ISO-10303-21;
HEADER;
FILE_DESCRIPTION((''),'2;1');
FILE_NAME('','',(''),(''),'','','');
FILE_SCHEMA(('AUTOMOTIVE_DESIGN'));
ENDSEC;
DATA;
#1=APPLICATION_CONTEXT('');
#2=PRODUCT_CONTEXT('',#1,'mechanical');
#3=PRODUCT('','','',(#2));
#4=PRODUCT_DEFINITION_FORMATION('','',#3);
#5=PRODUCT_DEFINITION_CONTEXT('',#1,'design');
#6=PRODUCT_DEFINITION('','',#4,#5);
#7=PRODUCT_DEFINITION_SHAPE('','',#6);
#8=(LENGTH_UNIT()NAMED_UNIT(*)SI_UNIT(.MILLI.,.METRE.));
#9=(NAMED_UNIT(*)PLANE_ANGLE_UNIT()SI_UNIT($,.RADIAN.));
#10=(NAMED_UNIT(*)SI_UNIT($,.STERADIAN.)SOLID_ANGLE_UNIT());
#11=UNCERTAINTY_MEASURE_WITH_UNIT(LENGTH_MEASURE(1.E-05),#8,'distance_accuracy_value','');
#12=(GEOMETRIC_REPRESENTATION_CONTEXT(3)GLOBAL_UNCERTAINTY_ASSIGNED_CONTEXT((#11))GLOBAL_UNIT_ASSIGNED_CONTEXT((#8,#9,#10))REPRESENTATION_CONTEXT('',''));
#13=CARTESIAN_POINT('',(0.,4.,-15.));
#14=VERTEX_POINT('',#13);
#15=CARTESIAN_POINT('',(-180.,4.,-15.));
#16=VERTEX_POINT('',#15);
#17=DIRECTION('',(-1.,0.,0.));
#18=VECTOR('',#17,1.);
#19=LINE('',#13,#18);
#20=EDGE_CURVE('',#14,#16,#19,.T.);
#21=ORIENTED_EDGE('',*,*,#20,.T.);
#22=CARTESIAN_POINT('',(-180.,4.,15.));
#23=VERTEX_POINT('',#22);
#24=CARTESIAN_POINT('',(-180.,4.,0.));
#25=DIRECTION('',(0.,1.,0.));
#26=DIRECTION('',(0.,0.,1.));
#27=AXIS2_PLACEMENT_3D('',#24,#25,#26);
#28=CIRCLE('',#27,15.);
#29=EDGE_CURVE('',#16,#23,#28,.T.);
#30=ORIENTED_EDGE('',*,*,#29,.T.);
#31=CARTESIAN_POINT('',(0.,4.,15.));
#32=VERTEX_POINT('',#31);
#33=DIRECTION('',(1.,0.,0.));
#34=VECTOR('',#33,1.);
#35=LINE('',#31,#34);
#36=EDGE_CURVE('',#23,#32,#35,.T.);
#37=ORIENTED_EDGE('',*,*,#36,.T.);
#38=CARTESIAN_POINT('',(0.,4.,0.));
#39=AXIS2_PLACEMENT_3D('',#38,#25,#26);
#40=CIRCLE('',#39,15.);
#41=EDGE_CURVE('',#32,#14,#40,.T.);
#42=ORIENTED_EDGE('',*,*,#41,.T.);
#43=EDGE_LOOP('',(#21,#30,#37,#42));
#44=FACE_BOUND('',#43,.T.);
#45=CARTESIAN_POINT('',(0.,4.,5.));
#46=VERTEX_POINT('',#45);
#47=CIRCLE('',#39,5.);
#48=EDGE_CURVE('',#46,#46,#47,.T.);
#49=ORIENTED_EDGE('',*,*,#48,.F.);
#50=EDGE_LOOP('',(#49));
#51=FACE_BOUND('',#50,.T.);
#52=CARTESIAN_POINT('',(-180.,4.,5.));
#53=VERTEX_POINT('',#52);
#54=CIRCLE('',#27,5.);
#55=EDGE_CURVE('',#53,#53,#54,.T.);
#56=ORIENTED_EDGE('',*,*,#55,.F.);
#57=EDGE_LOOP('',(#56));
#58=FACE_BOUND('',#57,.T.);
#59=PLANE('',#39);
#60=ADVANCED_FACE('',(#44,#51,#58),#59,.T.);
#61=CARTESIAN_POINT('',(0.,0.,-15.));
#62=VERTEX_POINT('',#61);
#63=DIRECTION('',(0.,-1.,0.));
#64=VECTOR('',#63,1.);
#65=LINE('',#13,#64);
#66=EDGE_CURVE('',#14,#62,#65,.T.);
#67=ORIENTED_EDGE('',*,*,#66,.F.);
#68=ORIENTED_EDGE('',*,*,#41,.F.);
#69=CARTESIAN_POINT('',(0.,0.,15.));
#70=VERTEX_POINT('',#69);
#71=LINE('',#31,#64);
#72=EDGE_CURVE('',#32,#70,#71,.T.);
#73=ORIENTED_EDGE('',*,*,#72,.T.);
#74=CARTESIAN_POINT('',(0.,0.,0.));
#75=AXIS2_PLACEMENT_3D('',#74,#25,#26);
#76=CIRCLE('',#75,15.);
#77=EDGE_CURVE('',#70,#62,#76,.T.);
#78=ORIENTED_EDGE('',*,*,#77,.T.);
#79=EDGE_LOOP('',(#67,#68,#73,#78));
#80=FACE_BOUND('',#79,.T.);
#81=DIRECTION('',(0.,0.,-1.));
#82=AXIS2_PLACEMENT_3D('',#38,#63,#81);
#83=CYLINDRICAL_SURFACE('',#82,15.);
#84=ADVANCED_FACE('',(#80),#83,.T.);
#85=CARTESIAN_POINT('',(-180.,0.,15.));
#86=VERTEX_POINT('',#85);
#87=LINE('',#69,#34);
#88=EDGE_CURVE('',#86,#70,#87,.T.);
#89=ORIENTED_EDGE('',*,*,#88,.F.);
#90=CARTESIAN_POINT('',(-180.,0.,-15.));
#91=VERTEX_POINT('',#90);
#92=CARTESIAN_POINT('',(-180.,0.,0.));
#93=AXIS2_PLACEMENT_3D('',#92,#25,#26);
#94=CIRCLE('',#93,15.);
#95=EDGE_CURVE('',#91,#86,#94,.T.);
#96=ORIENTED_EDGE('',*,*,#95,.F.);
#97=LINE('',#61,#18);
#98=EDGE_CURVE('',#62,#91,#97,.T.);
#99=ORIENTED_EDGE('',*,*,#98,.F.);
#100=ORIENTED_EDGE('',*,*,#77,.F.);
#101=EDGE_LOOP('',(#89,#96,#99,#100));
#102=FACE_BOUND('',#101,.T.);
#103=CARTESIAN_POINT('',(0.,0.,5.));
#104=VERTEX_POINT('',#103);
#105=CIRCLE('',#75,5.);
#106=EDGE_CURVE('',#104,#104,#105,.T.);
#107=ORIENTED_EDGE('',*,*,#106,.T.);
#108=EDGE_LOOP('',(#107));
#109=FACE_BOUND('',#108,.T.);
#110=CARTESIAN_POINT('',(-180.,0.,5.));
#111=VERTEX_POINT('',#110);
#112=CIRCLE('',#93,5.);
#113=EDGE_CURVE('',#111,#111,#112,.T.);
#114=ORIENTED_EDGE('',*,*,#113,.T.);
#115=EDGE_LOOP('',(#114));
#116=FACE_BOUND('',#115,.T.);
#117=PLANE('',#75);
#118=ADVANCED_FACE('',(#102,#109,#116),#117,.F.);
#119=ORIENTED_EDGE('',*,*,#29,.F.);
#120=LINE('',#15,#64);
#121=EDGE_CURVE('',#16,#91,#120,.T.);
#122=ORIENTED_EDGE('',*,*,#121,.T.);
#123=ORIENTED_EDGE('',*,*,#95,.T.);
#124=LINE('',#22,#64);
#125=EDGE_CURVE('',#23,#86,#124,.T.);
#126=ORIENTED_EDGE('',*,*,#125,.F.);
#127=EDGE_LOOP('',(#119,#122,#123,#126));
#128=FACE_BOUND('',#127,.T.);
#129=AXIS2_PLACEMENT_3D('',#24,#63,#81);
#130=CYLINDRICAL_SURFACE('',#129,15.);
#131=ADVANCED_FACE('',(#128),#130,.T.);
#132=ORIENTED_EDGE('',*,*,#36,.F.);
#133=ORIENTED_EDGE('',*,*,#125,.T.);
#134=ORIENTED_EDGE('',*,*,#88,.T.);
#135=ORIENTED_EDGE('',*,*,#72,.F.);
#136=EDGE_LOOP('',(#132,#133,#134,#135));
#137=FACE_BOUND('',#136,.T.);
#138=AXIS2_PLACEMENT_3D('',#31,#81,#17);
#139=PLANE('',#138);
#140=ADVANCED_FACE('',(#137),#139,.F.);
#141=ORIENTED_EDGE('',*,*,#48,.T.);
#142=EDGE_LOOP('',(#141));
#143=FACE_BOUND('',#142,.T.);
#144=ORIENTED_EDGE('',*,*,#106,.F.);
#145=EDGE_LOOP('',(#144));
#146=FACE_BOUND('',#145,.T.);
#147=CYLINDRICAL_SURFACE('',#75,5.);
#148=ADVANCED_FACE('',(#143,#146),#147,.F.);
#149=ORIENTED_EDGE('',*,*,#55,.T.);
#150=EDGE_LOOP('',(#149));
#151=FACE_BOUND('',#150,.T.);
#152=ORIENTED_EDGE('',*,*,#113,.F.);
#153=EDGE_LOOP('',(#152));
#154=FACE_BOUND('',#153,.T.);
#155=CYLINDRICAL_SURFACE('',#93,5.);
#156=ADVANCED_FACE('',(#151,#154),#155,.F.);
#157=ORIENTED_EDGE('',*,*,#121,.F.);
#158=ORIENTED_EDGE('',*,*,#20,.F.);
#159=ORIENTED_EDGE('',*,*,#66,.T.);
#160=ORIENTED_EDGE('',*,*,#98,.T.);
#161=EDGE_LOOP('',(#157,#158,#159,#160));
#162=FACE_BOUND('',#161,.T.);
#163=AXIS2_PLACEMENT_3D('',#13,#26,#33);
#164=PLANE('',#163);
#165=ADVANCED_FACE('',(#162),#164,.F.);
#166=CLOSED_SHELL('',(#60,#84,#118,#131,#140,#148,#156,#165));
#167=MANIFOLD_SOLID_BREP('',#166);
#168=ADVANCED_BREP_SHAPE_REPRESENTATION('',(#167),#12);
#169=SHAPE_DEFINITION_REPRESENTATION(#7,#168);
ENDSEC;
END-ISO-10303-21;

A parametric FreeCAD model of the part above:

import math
import FreeCAD as App
import Part
import Sketcher
from FreeCAD import Vector
Q = App.Units.Quantity

doc = App.newDocument("Part")
body = doc.addObject("PartDesign::Body", "Body")

# Sketch on XZ plane
sketch1 = doc.addObject("Sketcher::SketchObject", "Sketch")
body.addObject(sketch1)
sketch1.AttachmentSupport = (doc.XZ_Plane, [""])
sketch1.MapMode = "FlatFace"
sketch1.addGeometry(Part.LineSegment(Vector(-180, 15, 0), Vector(0, 15, 0)), False)
sketch1.addGeometry(Part.ArcOfCircle(Part.Circle(Vector(0, 0, 0), Vector(0, 0, 1), 15), math.radians(-90), math.radians(90)), False)
sketch1.addGeometry(Part.LineSegment(Vector(0, -15, 0), Vector(-180, -15, 0)), False)
sketch1.addGeometry(Part.ArcOfCircle(Part.Circle(Vector(-180, 0, 0), Vector(0, 0, 1), 15), math.radians(90), math.radians(270)), False)
sketch1.addConstraint(Sketcher.Constraint("Tangent", 0, 2, 1, 2))
sketch1.addConstraint(Sketcher.Constraint("Tangent", 1, 1, 2, 1))
sketch1.addConstraint(Sketcher.Constraint("Tangent", 2, 2, 3, 2))
sketch1.addConstraint(Sketcher.Constraint("Tangent", 3, 1, 0, 1))
sketch1.addConstraint(Sketcher.Constraint("Horizontal", 0))
sketch1.addConstraint(Sketcher.Constraint("Horizontal", 2))
sketch1.addConstraint(Sketcher.Constraint("Coincident", 1, 3, -1, 1))
sketch1.addConstraint(Sketcher.Constraint("Radius", 1, Q("15 mm")))
sketch1.addConstraint(Sketcher.Constraint("DistanceX", 0, 1, 0, 2, Q("180 mm")))
pad1 = doc.addObject("PartDesign::Pad", "Pad")
body.addObject(pad1)
pad1.Profile = sketch1
pad1.Length = 4
pad1.Reversed = True

# Sketch on XZ plane
sketch2 = doc.addObject("Sketcher::SketchObject", "Sketch001")
body.addObject(sketch2)
sketch2.AttachmentSupport = (doc.XZ_Plane, [""])
sketch2.MapMode = "FlatFace"
sketch2.AttachmentOffset = App.Placement(Vector(0, 0, -4), App.Rotation())
sketch2.addGeometry(Part.Circle(Vector(0, 0, 0), Vector(0, 0, 1), 5), False)
sketch2.addGeometry(Part.Circle(Vector(-180, 0, 0), Vector(0, 0, 1), 5), False)
sketch2.addConstraint(Sketcher.Constraint("Coincident", 0, 3, -1, 1))
sketch2.addConstraint(Sketcher.Constraint("Equal", 0, 1))
sketch2.addConstraint(Sketcher.Constraint("PointOnObject", 1, 3, -1))
sketch2.addConstraint(Sketcher.Constraint("Diameter", 0, Q("10 mm")))
sketch2.addConstraint(Sketcher.Constraint("DistanceX", 1, 3, -1, 1, Q("180 mm")))
pocket1 = doc.addObject("PartDesign::Pocket", "Pocket")
body.addObject(pocket1)
pocket1.Profile = sketch2
pocket1.Type = "ThroughAll"
pocket1.Reversed = True

doc.recompute()
